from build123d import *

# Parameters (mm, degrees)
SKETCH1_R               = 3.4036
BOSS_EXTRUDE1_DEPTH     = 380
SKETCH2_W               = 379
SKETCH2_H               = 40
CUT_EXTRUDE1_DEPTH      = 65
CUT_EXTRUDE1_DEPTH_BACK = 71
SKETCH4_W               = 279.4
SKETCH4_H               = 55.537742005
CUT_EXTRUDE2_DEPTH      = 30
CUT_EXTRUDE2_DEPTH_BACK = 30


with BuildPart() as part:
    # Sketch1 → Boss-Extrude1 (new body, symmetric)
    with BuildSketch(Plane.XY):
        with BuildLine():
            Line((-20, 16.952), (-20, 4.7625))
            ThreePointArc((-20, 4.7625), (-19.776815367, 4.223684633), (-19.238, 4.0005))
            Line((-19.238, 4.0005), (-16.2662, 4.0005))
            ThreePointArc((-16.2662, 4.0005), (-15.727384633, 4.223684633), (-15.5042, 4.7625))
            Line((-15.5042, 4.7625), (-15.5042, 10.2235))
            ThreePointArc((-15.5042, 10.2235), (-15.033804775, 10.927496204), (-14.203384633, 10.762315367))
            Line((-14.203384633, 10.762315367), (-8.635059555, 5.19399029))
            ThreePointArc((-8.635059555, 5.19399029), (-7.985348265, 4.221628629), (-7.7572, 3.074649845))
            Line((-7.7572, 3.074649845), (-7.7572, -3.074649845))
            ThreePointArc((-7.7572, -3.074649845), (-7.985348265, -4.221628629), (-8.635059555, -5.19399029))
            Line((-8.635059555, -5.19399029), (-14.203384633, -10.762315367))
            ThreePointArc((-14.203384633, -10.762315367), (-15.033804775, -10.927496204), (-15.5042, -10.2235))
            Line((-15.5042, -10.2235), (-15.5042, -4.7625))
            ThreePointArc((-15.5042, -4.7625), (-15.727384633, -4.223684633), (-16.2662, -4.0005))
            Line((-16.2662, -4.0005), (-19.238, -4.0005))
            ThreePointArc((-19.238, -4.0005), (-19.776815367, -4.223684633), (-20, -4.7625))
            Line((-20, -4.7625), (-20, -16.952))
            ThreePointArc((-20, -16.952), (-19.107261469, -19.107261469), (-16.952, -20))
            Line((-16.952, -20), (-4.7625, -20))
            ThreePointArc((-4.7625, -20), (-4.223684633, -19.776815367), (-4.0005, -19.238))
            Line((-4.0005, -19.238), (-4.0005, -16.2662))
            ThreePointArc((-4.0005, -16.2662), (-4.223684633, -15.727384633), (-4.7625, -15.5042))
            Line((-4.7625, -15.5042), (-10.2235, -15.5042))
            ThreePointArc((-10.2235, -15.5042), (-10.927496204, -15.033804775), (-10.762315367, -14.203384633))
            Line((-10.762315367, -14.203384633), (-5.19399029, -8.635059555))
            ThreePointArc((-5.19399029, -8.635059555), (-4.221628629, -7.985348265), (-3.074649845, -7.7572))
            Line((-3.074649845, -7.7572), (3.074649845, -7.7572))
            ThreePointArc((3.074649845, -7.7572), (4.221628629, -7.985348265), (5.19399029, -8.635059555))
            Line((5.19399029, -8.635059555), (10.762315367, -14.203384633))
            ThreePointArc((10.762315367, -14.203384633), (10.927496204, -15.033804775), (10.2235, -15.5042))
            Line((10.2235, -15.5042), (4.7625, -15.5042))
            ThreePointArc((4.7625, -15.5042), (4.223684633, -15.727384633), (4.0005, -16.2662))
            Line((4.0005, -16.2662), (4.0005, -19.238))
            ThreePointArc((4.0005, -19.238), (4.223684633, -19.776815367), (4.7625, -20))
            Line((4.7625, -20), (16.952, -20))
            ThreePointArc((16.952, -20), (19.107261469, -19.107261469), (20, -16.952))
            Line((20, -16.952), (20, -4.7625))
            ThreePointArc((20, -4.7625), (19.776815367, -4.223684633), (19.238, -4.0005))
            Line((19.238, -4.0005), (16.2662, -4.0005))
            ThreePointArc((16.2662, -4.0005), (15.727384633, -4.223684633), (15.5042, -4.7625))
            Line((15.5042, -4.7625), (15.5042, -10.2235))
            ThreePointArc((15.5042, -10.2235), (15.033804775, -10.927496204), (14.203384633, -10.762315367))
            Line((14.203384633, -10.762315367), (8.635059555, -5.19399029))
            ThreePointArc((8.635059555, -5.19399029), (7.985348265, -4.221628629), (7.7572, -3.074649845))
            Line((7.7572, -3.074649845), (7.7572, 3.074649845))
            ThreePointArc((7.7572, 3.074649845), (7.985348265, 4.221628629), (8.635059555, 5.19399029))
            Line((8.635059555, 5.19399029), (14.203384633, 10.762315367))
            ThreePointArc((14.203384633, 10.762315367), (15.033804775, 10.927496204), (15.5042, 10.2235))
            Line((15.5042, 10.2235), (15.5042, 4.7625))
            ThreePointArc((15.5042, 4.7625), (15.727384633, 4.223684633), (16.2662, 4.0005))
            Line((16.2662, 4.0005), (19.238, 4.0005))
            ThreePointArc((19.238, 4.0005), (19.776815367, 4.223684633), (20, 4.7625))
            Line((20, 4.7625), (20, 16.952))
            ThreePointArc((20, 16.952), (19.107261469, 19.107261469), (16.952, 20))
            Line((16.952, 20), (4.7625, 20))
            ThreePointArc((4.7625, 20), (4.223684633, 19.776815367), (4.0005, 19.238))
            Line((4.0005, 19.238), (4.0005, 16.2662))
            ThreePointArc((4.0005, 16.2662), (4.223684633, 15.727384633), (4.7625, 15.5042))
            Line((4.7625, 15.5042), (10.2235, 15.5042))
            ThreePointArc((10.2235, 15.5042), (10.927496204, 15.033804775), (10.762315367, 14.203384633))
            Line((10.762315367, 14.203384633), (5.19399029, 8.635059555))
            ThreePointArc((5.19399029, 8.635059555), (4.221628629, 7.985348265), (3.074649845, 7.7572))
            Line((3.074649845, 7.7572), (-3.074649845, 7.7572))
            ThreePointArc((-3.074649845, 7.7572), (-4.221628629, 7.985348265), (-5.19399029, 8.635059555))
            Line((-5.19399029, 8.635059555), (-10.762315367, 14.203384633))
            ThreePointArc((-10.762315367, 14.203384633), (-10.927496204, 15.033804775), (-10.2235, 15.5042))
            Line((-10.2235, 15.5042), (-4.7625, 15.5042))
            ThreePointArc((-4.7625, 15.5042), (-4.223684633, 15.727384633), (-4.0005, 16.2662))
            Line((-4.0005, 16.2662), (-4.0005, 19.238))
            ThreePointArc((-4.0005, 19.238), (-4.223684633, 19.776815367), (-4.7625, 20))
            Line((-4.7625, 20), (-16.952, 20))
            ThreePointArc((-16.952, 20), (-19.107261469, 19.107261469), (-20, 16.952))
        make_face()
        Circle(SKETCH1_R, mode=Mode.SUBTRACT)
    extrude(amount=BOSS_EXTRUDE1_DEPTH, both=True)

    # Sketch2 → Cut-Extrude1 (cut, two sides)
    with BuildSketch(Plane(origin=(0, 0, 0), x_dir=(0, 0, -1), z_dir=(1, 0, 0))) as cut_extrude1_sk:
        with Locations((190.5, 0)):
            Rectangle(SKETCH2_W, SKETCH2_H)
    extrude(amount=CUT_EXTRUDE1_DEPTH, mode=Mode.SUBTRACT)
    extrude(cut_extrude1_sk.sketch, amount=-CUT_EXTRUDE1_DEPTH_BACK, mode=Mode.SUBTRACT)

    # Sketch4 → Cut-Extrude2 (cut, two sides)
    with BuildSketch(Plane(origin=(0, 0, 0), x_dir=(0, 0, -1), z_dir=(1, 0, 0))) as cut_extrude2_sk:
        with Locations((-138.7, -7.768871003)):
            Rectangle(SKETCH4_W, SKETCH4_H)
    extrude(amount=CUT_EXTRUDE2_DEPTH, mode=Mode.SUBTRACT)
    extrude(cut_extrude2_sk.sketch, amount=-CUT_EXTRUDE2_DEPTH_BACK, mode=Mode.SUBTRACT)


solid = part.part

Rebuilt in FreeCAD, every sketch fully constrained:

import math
import FreeCAD as App
import Part
import Sketcher
Q = App.Units.Quantity

doc = App.newDocument("Part")
body = doc.addObject("PartDesign::Body", "Body")

sketch1 = body.newObject("Sketcher::SketchObject", "Sketch")
sketch1.AttachmentSupport = (doc.getObject("XY_Plane"), [""])
sketch1.MapMode = "FlatFace"
sketch1.addGeometry([
    Part.LineSegment(App.Vector(-20, 17, 0), App.Vector(-20, 4.8, 0)),
    Part.ArcOfCircle(Part.Circle(App.Vector(-19.2, 4.8, 0), App.Vector(0, 0, 1), 0.8), math.radians(-180), math.radians(-90)),
    Part.LineSegment(App.Vector(-19.2, 4, 0), App.Vector(-16.3, 4, 0)),
    Part.ArcOfCircle(Part.Circle(App.Vector(-16.3, 4.8, 0), App.Vector(0, 0, 1), 0.8), math.radians(-90), math.radians(0)),
    Part.LineSegment(App.Vector(-15.5, 4.8, 0), App.Vector(-15.5, 10.2, 0)),
    Part.ArcOfCircle(Part.Circle(App.Vector(-14.7, 10.2, 0), App.Vector(0, 0, 1), 0.8), math.radians(45), math.radians(180)),
    Part.LineSegment(App.Vector(-14.2, 10.8, 0), App.Vector(-8.6, 5.2, 0)),
    Part.ArcOfCircle(Part.Circle(App.Vector(-10.8, 3.1, 0), App.Vector(0, 0, 1), 3), math.radians(0), math.radians(45)),
    Part.LineSegment(App.Vector(-7.8, 3.1, 0), App.Vector(-7.8, -3.1, 0)),
    Part.ArcOfCircle(Part.Circle(App.Vector(-10.8, -3.1, 0), App.Vector(0, 0, 1), 3), math.radians(-45), math.radians(0)),
    Part.LineSegment(App.Vector(-8.6, -5.2, 0), App.Vector(-14.2, -10.8, 0)),
    Part.ArcOfCircle(Part.Circle(App.Vector(-14.7, -10.2, 0), App.Vector(0, 0, 1), 0.8), math.radians(180), math.radians(315)),
    Part.LineSegment(App.Vector(-15.5, -10.2, 0), App.Vector(-15.5, -4.8, 0)),
    Part.ArcOfCircle(Part.Circle(App.Vector(-16.3, -4.8, 0), App.Vector(0, 0, 1), 0.8), math.radians(0), math.radians(90)),
    Part.LineSegment(App.Vector(-16.3, -4, 0), App.Vector(-19.2, -4, 0)),
    Part.ArcOfCircle(Part.Circle(App.Vector(-19.2, -4.8, 0), App.Vector(0, 0, 1), 0.8), math.radians(90), math.radians(180)),
    Part.LineSegment(App.Vector(-20, -4.8, 0), App.Vector(-20, -17, 0)),
    Part.ArcOfCircle(Part.Circle(App.Vector(-17, -17, 0), App.Vector(0, 0, 1), 3), math.radians(180), math.radians(270)),
    Part.LineSegment(App.Vector(-17, -20, 0), App.Vector(-4.8, -20, 0)),
    Part.ArcOfCircle(Part.Circle(App.Vector(-4.8, -19.2, 0), App.Vector(0, 0, 1), 0.8), math.radians(-90), math.radians(0)),
    Part.LineSegment(App.Vector(-4, -19.2, 0), App.Vector(-4, -16.3, 0)),
    Part.ArcOfCircle(Part.Circle(App.Vector(-4.8, -16.3, 0), App.Vector(0, 0, 1), 0.8), math.radians(0), math.radians(90)),
    Part.LineSegment(App.Vector(-4.8, -15.5, 0), App.Vector(-10.2, -15.5, 0)),
    Part.ArcOfCircle(Part.Circle(App.Vector(-10.2, -14.7, 0), App.Vector(0, 0, 1), 0.8), math.radians(135), math.radians(270)),
    Part.LineSegment(App.Vector(-10.8, -14.2, 0), App.Vector(-5.2, -8.6, 0)),
    Part.ArcOfCircle(Part.Circle(App.Vector(-3.1, -10.8, 0), App.Vector(0, 0, 1), 3), math.radians(90), math.radians(135)),
    Part.LineSegment(App.Vector(-3.1, -7.8, 0), App.Vector(3.1, -7.8, 0)),
    Part.ArcOfCircle(Part.Circle(App.Vector(3.1, -10.8, 0), App.Vector(0, 0, 1), 3), math.radians(45), math.radians(90)),
    Part.LineSegment(App.Vector(5.2, -8.6, 0), App.Vector(10.8, -14.2, 0)),
    Part.ArcOfCircle(Part.Circle(App.Vector(10.2, -14.7, 0), App.Vector(0, 0, 1), 0.8), math.radians(-90), math.radians(45)),
    Part.LineSegment(App.Vector(10.2, -15.5, 0), App.Vector(4.8, -15.5, 0)),
    Part.ArcOfCircle(Part.Circle(App.Vector(4.8, -16.3, 0), App.Vector(0, 0, 1), 0.8), math.radians(90), math.radians(180)),
    Part.LineSegment(App.Vector(4, -16.3, 0), App.Vector(4, -19.2, 0)),
    Part.ArcOfCircle(Part.Circle(App.Vector(4.8, -19.2, 0), App.Vector(0, 0, 1), 0.8), math.radians(-180), math.radians(-90)),
    Part.LineSegment(App.Vector(4.8, -20, 0), App.Vector(17, -20, 0)),
    Part.ArcOfCircle(Part.Circle(App.Vector(17, -17, 0), App.Vector(0, 0, 1), 3), math.radians(-90), math.radians(0)),
    Part.LineSegment(App.Vector(20, -17, 0), App.Vector(20, -4.8, 0)),
    Part.ArcOfCircle(Part.Circle(App.Vector(19.2, -4.8, 0), App.Vector(0, 0, 1), 0.8), math.radians(0), math.radians(90)),
    Part.LineSegment(App.Vector(19.2, -4, 0), App.Vector(16.3, -4, 0)),
    Part.ArcOfCircle(Part.Circle(App.Vector(16.3, -4.8, 0), App.Vector(0, 0, 1), 0.8), math.radians(90), math.radians(180)),
    Part.LineSegment(App.Vector(15.5, -4.8, 0), App.Vector(15.5, -10.2, 0)),
    Part.ArcOfCircle(Part.Circle(App.Vector(14.7, -10.2, 0), App.Vector(0, 0, 1), 0.8), math.radians(-135), math.radians(0)),
    Part.LineSegment(App.Vector(14.2, -10.8, 0), App.Vector(8.6, -5.2, 0)),
    Part.ArcOfCircle(Part.Circle(App.Vector(10.8, -3.1, 0), App.Vector(0, 0, 1), 3), math.radians(180), math.radians(225)),
    Part.LineSegment(App.Vector(7.8, -3.1, 0), App.Vector(7.8, 3.1, 0)),
    Part.ArcOfCircle(Part.Circle(App.Vector(10.8, 3.1, 0), App.Vector(0, 0, 1), 3), math.radians(135), math.radians(180)),
    Part.LineSegment(App.Vector(8.6, 5.2, 0), App.Vector(14.2, 10.8, 0)),
    Part.ArcOfCircle(Part.Circle(App.Vector(14.7, 10.2, 0), App.Vector(0, 0, 1), 0.8), math.radians(0), math.radians(135)),
    Part.LineSegment(App.Vector(15.5, 10.2, 0), App.Vector(15.5, 4.8, 0)),
    Part.ArcOfCircle(Part.Circle(App.Vector(16.3, 4.8, 0), App.Vector(0, 0, 1), 0.8), math.radians(-180), math.radians(-90)),
    Part.LineSegment(App.Vector(16.3, 4, 0), App.Vector(19.2, 4, 0)),
    Part.ArcOfCircle(Part.Circle(App.Vector(19.2, 4.8, 0), App.Vector(0, 0, 1), 0.8), math.radians(-90), math.radians(0)),
    Part.LineSegment(App.Vector(20, 4.8, 0), App.Vector(20, 17, 0)),
    Part.ArcOfCircle(Part.Circle(App.Vector(17, 17, 0), App.Vector(0, 0, 1), 3), math.radians(0), math.radians(90)),
    Part.LineSegment(App.Vector(17, 20, 0), App.Vector(4.8, 20, 0)),
    Part.ArcOfCircle(Part.Circle(App.Vector(4.8, 19.2, 0), App.Vector(0, 0, 1), 0.8), math.radians(90), math.radians(180)),
    Part.LineSegment(App.Vector(4, 19.2, 0), App.Vector(4, 16.3, 0)),
    Part.ArcOfCircle(Part.Circle(App.Vector(4.8, 16.3, 0), App.Vector(0, 0, 1), 0.8), math.radians(-180), math.radians(-90)),
    Part.LineSegment(App.Vector(4.8, 15.5, 0), App.Vector(10.2, 15.5, 0)),
    Part.ArcOfCircle(Part.Circle(App.Vector(10.2, 14.7, 0), App.Vector(0, 0, 1), 0.8), math.radians(-45), math.radians(90)),
    Part.LineSegment(App.Vector(10.8, 14.2, 0), App.Vector(5.2, 8.6, 0)),
    Part.ArcOfCircle(Part.Circle(App.Vector(3.1, 10.8, 0), App.Vector(0, 0, 1), 3), math.radians(-90), math.radians(-45)),
    Part.LineSegment(App.Vector(3.1, 7.8, 0), App.Vector(-3.1, 7.8, 0)),
    Part.ArcOfCircle(Part.Circle(App.Vector(-3.1, 10.8, 0), App.Vector(0, 0, 1), 3), math.radians(-135), math.radians(-90)),
    Part.LineSegment(App.Vector(-5.2, 8.6, 0), App.Vector(-10.8, 14.2, 0)),
    Part.ArcOfCircle(Part.Circle(App.Vector(-10.2, 14.7, 0), App.Vector(0, 0, 1), 0.8), math.radians(90), math.radians(225)),
    Part.LineSegment(App.Vector(-10.2, 15.5, 0), App.Vector(-4.8, 15.5, 0)),
    Part.ArcOfCircle(Part.Circle(App.Vector(-4.8, 16.3, 0), App.Vector(0, 0, 1), 0.8), math.radians(-90), math.radians(0)),
    Part.LineSegment(App.Vector(-4, 16.3, 0), App.Vector(-4, 19.2, 0)),
    Part.ArcOfCircle(Part.Circle(App.Vector(-4.8, 19.2, 0), App.Vector(0, 0, 1), 0.8), math.radians(0), math.radians(90)),
    Part.LineSegment(App.Vector(-4.8, 20, 0), App.Vector(-17, 20, 0)),
    Part.ArcOfCircle(Part.Circle(App.Vector(-17, 17, 0), App.Vector(0, 0, 1), 3), math.radians(90), math.radians(180)),
    Part.Circle(App.Vector(0, 0, 0), App.Vector(0, 0, 1), 3.4),
], False)
sketch1.addConstraint([
    Sketcher.Constraint("Tangent", 0, 2, 1, 1),
    Sketcher.Constraint("Tangent", 1, 2, 2, 1),
    Sketcher.Constraint("Tangent", 2, 2, 3, 1),
    Sketcher.Constraint("Tangent", 3, 2, 4, 1),
    Sketcher.Constraint("Tangent", 4, 2, 5, 2),
    Sketcher.Constraint("Tangent", 5, 1, 6, 1),
    Sketcher.Constraint("Tangent", 6, 2, 7, 2),
    Sketcher.Constraint("Tangent", 7, 1, 8, 1),
    Sketcher.Constraint("Tangent", 8, 2, 9, 2),
    Sketcher.Constraint("Tangent", 9, 1, 10, 1),
    Sketcher.Constraint("Tangent", 10, 2, 11, 2),
    Sketcher.Constraint("Tangent", 11, 1, 12, 1),
    Sketcher.Constraint("Tangent", 12, 2, 13, 1),
    Sketcher.Constraint("Tangent", 13, 2, 14, 1),
    Sketcher.Constraint("Tangent", 14, 2, 15, 1),
    Sketcher.Constraint("Tangent", 15, 2, 16, 1),
    Sketcher.Constraint("Tangent", 16, 2, 17, 1),
    Sketcher.Constraint("Tangent", 17, 2, 18, 1),
    Sketcher.Constraint("Tangent", 18, 2, 19, 1),
    Sketcher.Constraint("Tangent", 19, 2, 20, 1),
    Sketcher.Constraint("Tangent", 20, 2, 21, 1),
    Sketcher.Constraint("Tangent", 21, 2, 22, 1),
    Sketcher.Constraint("Tangent", 22, 2, 23, 2),
    Sketcher.Constraint("Tangent", 23, 1, 24, 1),
    Sketcher.Constraint("Tangent", 24, 2, 25, 2),
    Sketcher.Constraint("Tangent", 25, 1, 26, 1),
    Sketcher.Constraint("Tangent", 26, 2, 27, 2),
    Sketcher.Constraint("Tangent", 27, 1, 28, 1),
    Sketcher.Constraint("Tangent", 28, 2, 29, 2),
    Sketcher.Constraint("Tangent", 29, 1, 30, 1),
    Sketcher.Constraint("Tangent", 30, 2, 31, 1),
    Sketcher.Constraint("Tangent", 31, 2, 32, 1),
    Sketcher.Constraint("Tangent", 32, 2, 33, 1),
    Sketcher.Constraint("Tangent", 33, 2, 34, 1),
    Sketcher.Constraint("Tangent", 34, 2, 35, 1),
    Sketcher.Constraint("Tangent", 35, 2, 36, 1),
    Sketcher.Constraint("Tangent", 36, 2, 37, 1),
    Sketcher.Constraint("Tangent", 37, 2, 38, 1),
    Sketcher.Constraint("Tangent", 38, 2, 39, 1),
    Sketcher.Constraint("Tangent", 39, 2, 40, 1),
    Sketcher.Constraint("Tangent", 40, 2, 41, 2),
    Sketcher.Constraint("Tangent", 41, 1, 42, 1),
    Sketcher.Constraint("Tangent", 42, 2, 43, 2),
    Sketcher.Constraint("Tangent", 43, 1, 44, 1),
    Sketcher.Constraint("Tangent", 44, 2, 45, 2),
    Sketcher.Constraint("Tangent", 45, 1, 46, 1),
    Sketcher.Constraint("Tangent", 46, 2, 47, 2),
    Sketcher.Constraint("Tangent", 47, 1, 48, 1),
    Sketcher.Constraint("Tangent", 48, 2, 49, 1),
    Sketcher.Constraint("Tangent", 49, 2, 50, 1),
    Sketcher.Constraint("Tangent", 50, 2, 51, 1),
    Sketcher.Constraint("Tangent", 51, 2, 52, 1),
    Sketcher.Constraint("Tangent", 52, 2, 53, 1),
    Sketcher.Constraint("Tangent", 53, 2, 54, 1),
    Sketcher.Constraint("Tangent", 54, 2, 55, 1),
    Sketcher.Constraint("Tangent", 55, 2, 56, 1),
    Sketcher.Constraint("Tangent", 56, 2, 57, 1),
    Sketcher.Constraint("Tangent", 57, 2, 58, 1),
    Sketcher.Constraint("Tangent", 58, 2, 59, 2),
    Sketcher.Constraint("Tangent", 59, 1, 60, 1),
    Sketcher.Constraint("Tangent", 60, 2, 61, 2),
    Sketcher.Constraint("Tangent", 61, 1, 62, 1),
    Sketcher.Constraint("Tangent", 62, 2, 63, 2),
    Sketcher.Constraint("Tangent", 63, 1, 64, 1),
    Sketcher.Constraint("Tangent", 64, 2, 65, 2),
    Sketcher.Constraint("Tangent", 65, 1, 66, 1),
    Sketcher.Constraint("Tangent", 66, 2, 67, 1),
    Sketcher.Constraint("Tangent", 67, 2, 68, 1),
    Sketcher.Constraint("Tangent", 68, 2, 69, 1),
    Sketcher.Constraint("Tangent", 69, 2, 70, 1),
    Sketcher.Constraint("Tangent", 70, 2, 71, 1),
    Sketcher.Constraint("Tangent", 71, 2, 0, 1),
    Sketcher.Constraint("Vertical", 0),
    Sketcher.Constraint("Horizontal", 2),
    Sketcher.Constraint("Vertical", 4),
    Sketcher.Constraint("Vertical", 8),
    Sketcher.Constraint("Vertical", 12),
    Sketcher.Constraint("Horizontal", 14),
    Sketcher.Constraint("Vertical", 16),
    Sketcher.Constraint("Horizontal", 18),
    Sketcher.Constraint("Vertical", 20),
    Sketcher.Constraint("Horizontal", 22),
    Sketcher.Constraint("Horizontal", 26),
    Sketcher.Constraint("Horizontal", 30),
    Sketcher.Constraint("Vertical", 32),
    Sketcher.Constraint("Horizontal", 34),
    Sketcher.Constraint("Vertical", 36),
    Sketcher.Constraint("Horizontal", 38),
    Sketcher.Constraint("Vertical", 40),
    Sketcher.Constraint("Vertical", 44),
    Sketcher.Constraint("Vertical", 48),
    Sketcher.Constraint("Horizontal", 50),
    Sketcher.Constraint("Vertical", 52),
    Sketcher.Constraint("Horizontal", 54),
    Sketcher.Constraint("Vertical", 56),
    Sketcher.Constraint("Horizontal", 58),
    Sketcher.Constraint("Horizontal", 62),
    Sketcher.Constraint("Horizontal", 66),
    Sketcher.Constraint("Vertical", 68),
    Sketcher.Constraint("Horizontal", 70),
    Sketcher.Constraint("Coincident", 72, 3, -1, 1),
    Sketcher.Constraint("Equal", 1, 3),
    Sketcher.Constraint("Equal", 3, 5),
    Sketcher.Constraint("Equal", 7, 9),
    Sketcher.Constraint("Equal", 5, 11),
    Sketcher.Constraint("Equal", 11, 13),
    Sketcher.Constraint("Equal", 13, 15),
    Sketcher.Constraint("Equal", 15, 19),
    Sketcher.Constraint("Equal", 19, 21),
    Sketcher.Constraint("Equal", 21, 23),
    Sketcher.Constraint("Equal", 9, 25),
    Sketcher.Constraint("Equal", 25, 27),
    Sketcher.Constraint("Equal", 23, 29),
    Sketcher.Constraint("Equal", 29, 31),
    Sketcher.Constraint("Equal", 31, 33),
    Sketcher.Constraint("Equal", 17, 35),
    Sketcher.Constraint("Equal", 33, 37),
    Sketcher.Constraint("Equal", 37, 39),
    Sketcher.Constraint("Equal", 39, 41),
    Sketcher.Constraint("Equal", 27, 43),
    Sketcher.Constraint("Equal", 43, 45),
    Sketcher.Constraint("Equal", 41, 47),
    Sketcher.Constraint("Equal", 47, 49),
    Sketcher.Constraint("Equal", 49, 51),
    Sketcher.Constraint("Equal", 35, 53),
    Sketcher.Constraint("Equal", 51, 55),
    Sketcher.Constraint("Equal", 55, 57),
    Sketcher.Constraint("Equal", 57, 59),
    Sketcher.Constraint("Equal", 45, 61),
    Sketcher.Constraint("Equal", 61, 63),
    Sketcher.Constraint("Equal", 59, 65),
    Sketcher.Constraint("Equal", 65, 67),
    Sketcher.Constraint("Equal", 67, 69),
    Sketcher.Constraint("Equal", 53, 71),
    Sketcher.Constraint("Symmetric", 1, 3, 37, 3, -1, 1),
    Sketcher.Constraint("Symmetric", 5, 3, 41, 3, -1, 1),
    Sketcher.Constraint("Symmetric", 7, 3, 43, 3, -1, 1),
    Sketcher.Constraint("Symmetric", 11, 3, 47, 3, -1, 1),
    Sketcher.Constraint("Symmetric", 15, 3, 51, 3, -1, 1),
    Sketcher.Constraint("Symmetric", 19, 3, 55, 3, -1, 1),
    Sketcher.Constraint("Symmetric", 23, 3, 59, 3, -1, 1),
    Sketcher.Constraint("Symmetric", 25, 3, 61, 3, -1, 1),
    Sketcher.Constraint("Symmetric", 29, 3, 65, 3, -1, 1),
    Sketcher.Constraint("Symmetric", 33, 3, 69, 3, -1, 1),
    Sketcher.Constraint("Symmetric", 23, 3, 29, 3, -2),
    Sketcher.Constraint("Symmetric", 19, 3, 33, 3, -2),
    Sketcher.Constraint("Symmetric", 15, 3, 37, 3, -2),
    Sketcher.Constraint("Symmetric", 11, 3, 41, 3, -2),
    Sketcher.Constraint("Perpendicular", 6, 10),
    Sketcher.Constraint("Parallel", 10, 24),
    Sketcher.Constraint("Perpendicular", 24, 28),
    Sketcher.Constraint("Perpendicular", 42, 46),
    Sketcher.Constraint("Perpendicular", 60, 64),
    Sketcher.Constraint("Horizontal", 9, 3, 43, 3),
    Sketcher.Constraint("Equal", 70, 0),
    Sketcher.Constraint("Equal", 66, 4),
    Sketcher.Constraint("Equal", 62, 8),
    Sketcher.Constraint("Equal", 50, 20),
    Sketcher.Constraint("Equal", 10, 24),
    Sketcher.Constraint("Radius", 1, Q("0.03 in")),
    Sketcher.Constraint("Radius", 17, Q("0.12 in")),
    Sketcher.Constraint("Diameter", 72, Q("0.268 in")),
    Sketcher.Constraint("Radius", 7, Q("0.118 in")),
    Sketcher.Constraint("DistanceX", 2, 1, 2, 2, Q("0.117 in")),
    Sketcher.Constraint("DistanceX", 22, 2, 22, 1, Q("0.215 in")),
    Sketcher.Constraint("DistanceY", -1, 1, 1, 3, Q("0.1875 in")),
    Sketcher.Constraint("DistanceX", 18, 1, 18, 2, 12.1895),
    Sketcher.Constraint("DistanceX", 26, 1, 26, 2, 6.1493),
])
pad1 = body.newObject("PartDesign::Pad", "Pad")
pad1.Profile = sketch1
pad1.Length = 760
pad1.Midplane = True

sketch2 = body.newObject("Sketcher::SketchObject", "Sketch001")
sketch2.AttachmentSupport = (doc.getObject("YZ_Plane"), [""])
sketch2.MapMode = "FlatFace"
sketch2.addGeometry([
    Part.LineSegment(App.Vector(20, -1, 0), App.Vector(-20, -1, 0)),
    Part.LineSegment(App.Vector(-20, -1, 0), App.Vector(-20, -380, 0)),
    Part.LineSegment(App.Vector(-20, -380, 0), App.Vector(20, -380, 0)),
    Part.LineSegment(App.Vector(20, -380, 0), App.Vector(20, -1, 0)),
], False)
sketch2.addConstraint([
    Sketcher.Constraint("Coincident", 0, 2, 1, 1),
    Sketcher.Constraint("Coincident", 1, 2, 2, 1),
    Sketcher.Constraint("Coincident", 2, 2, 3, 1),
    Sketcher.Constraint("Coincident", 3, 2, 0, 1),
    Sketcher.Constraint("Horizontal", 0),
    Sketcher.Constraint("Vertical", 1),
    Sketcher.Constraint("Horizontal", 2),
    Sketcher.Constraint("Vertical", 3),
    Sketcher.Constraint("DistanceX", 0, 2, 0, 1, 40.0),
    Sketcher.Constraint("DistanceY", 1, 2, 1, 1, 379.0),
    Sketcher.Constraint("DistanceX", 0, 2, -1, 1, 20.0),
    Sketcher.Constraint("DistanceY", 0, 2, -1, 1, 1.0),
])
pocket1 = body.newObject("PartDesign::Pocket", "Pocket")
pocket1.Profile = sketch2
pocket1.Type = "ThroughAll"
pocket1.Midplane = True

sketch3 = body.newObject("Sketcher::SketchObject", "Sketch002")
sketch3.AttachmentSupport = (doc.getObject("YZ_Plane"), [""])
sketch3.MapMode = "FlatFace"
sketch3.addGeometry([
    Part.LineSegment(App.Vector(20, 278, 0), App.Vector(-36, 278, 0)),
    Part.LineSegment(App.Vector(-36, 278, 0), App.Vector(-36, -1, 0)),
    Part.LineSegment(App.Vector(-36, -1, 0), App.Vector(20, -1, 0)),
    Part.LineSegment(App.Vector(20, -1, 0), App.Vector(20, 278, 0)),
], False)
sketch3.addConstraint([
    Sketcher.Constraint("Coincident", 0, 2, 1, 1),
    Sketcher.Constraint("Coincident", 1, 2, 2, 1),
    Sketcher.Constraint("Coincident", 2, 2, 3, 1),
    Sketcher.Constraint("Coincident", 3, 2, 0, 1),
    Sketcher.Constraint("Horizontal", 0),
    Sketcher.Constraint("Vertical", 1),
    Sketcher.Constraint("Horizontal", 2),
    Sketcher.Constraint("Vertical", 3),
    Sketcher.Constraint("DistanceY", 1, 2, 1, 1, Q("11 in")),
    Sketcher.Constraint("DistanceY", -1, 1, 0, 2, 278.4),
    Sketcher.Constraint("DistanceX", -1, 1, 2, 2, 20.0),
    Sketcher.Constraint("DistanceX", 0, 2, 0, 1, 55.537742),
])
pocket2 = body.newObject("PartDesign::Pocket", "Pocket001")
pocket2.Profile = sketch3
pocket2.Type = "ThroughAll"
pocket2.Midplane = True

doc.recompute()
